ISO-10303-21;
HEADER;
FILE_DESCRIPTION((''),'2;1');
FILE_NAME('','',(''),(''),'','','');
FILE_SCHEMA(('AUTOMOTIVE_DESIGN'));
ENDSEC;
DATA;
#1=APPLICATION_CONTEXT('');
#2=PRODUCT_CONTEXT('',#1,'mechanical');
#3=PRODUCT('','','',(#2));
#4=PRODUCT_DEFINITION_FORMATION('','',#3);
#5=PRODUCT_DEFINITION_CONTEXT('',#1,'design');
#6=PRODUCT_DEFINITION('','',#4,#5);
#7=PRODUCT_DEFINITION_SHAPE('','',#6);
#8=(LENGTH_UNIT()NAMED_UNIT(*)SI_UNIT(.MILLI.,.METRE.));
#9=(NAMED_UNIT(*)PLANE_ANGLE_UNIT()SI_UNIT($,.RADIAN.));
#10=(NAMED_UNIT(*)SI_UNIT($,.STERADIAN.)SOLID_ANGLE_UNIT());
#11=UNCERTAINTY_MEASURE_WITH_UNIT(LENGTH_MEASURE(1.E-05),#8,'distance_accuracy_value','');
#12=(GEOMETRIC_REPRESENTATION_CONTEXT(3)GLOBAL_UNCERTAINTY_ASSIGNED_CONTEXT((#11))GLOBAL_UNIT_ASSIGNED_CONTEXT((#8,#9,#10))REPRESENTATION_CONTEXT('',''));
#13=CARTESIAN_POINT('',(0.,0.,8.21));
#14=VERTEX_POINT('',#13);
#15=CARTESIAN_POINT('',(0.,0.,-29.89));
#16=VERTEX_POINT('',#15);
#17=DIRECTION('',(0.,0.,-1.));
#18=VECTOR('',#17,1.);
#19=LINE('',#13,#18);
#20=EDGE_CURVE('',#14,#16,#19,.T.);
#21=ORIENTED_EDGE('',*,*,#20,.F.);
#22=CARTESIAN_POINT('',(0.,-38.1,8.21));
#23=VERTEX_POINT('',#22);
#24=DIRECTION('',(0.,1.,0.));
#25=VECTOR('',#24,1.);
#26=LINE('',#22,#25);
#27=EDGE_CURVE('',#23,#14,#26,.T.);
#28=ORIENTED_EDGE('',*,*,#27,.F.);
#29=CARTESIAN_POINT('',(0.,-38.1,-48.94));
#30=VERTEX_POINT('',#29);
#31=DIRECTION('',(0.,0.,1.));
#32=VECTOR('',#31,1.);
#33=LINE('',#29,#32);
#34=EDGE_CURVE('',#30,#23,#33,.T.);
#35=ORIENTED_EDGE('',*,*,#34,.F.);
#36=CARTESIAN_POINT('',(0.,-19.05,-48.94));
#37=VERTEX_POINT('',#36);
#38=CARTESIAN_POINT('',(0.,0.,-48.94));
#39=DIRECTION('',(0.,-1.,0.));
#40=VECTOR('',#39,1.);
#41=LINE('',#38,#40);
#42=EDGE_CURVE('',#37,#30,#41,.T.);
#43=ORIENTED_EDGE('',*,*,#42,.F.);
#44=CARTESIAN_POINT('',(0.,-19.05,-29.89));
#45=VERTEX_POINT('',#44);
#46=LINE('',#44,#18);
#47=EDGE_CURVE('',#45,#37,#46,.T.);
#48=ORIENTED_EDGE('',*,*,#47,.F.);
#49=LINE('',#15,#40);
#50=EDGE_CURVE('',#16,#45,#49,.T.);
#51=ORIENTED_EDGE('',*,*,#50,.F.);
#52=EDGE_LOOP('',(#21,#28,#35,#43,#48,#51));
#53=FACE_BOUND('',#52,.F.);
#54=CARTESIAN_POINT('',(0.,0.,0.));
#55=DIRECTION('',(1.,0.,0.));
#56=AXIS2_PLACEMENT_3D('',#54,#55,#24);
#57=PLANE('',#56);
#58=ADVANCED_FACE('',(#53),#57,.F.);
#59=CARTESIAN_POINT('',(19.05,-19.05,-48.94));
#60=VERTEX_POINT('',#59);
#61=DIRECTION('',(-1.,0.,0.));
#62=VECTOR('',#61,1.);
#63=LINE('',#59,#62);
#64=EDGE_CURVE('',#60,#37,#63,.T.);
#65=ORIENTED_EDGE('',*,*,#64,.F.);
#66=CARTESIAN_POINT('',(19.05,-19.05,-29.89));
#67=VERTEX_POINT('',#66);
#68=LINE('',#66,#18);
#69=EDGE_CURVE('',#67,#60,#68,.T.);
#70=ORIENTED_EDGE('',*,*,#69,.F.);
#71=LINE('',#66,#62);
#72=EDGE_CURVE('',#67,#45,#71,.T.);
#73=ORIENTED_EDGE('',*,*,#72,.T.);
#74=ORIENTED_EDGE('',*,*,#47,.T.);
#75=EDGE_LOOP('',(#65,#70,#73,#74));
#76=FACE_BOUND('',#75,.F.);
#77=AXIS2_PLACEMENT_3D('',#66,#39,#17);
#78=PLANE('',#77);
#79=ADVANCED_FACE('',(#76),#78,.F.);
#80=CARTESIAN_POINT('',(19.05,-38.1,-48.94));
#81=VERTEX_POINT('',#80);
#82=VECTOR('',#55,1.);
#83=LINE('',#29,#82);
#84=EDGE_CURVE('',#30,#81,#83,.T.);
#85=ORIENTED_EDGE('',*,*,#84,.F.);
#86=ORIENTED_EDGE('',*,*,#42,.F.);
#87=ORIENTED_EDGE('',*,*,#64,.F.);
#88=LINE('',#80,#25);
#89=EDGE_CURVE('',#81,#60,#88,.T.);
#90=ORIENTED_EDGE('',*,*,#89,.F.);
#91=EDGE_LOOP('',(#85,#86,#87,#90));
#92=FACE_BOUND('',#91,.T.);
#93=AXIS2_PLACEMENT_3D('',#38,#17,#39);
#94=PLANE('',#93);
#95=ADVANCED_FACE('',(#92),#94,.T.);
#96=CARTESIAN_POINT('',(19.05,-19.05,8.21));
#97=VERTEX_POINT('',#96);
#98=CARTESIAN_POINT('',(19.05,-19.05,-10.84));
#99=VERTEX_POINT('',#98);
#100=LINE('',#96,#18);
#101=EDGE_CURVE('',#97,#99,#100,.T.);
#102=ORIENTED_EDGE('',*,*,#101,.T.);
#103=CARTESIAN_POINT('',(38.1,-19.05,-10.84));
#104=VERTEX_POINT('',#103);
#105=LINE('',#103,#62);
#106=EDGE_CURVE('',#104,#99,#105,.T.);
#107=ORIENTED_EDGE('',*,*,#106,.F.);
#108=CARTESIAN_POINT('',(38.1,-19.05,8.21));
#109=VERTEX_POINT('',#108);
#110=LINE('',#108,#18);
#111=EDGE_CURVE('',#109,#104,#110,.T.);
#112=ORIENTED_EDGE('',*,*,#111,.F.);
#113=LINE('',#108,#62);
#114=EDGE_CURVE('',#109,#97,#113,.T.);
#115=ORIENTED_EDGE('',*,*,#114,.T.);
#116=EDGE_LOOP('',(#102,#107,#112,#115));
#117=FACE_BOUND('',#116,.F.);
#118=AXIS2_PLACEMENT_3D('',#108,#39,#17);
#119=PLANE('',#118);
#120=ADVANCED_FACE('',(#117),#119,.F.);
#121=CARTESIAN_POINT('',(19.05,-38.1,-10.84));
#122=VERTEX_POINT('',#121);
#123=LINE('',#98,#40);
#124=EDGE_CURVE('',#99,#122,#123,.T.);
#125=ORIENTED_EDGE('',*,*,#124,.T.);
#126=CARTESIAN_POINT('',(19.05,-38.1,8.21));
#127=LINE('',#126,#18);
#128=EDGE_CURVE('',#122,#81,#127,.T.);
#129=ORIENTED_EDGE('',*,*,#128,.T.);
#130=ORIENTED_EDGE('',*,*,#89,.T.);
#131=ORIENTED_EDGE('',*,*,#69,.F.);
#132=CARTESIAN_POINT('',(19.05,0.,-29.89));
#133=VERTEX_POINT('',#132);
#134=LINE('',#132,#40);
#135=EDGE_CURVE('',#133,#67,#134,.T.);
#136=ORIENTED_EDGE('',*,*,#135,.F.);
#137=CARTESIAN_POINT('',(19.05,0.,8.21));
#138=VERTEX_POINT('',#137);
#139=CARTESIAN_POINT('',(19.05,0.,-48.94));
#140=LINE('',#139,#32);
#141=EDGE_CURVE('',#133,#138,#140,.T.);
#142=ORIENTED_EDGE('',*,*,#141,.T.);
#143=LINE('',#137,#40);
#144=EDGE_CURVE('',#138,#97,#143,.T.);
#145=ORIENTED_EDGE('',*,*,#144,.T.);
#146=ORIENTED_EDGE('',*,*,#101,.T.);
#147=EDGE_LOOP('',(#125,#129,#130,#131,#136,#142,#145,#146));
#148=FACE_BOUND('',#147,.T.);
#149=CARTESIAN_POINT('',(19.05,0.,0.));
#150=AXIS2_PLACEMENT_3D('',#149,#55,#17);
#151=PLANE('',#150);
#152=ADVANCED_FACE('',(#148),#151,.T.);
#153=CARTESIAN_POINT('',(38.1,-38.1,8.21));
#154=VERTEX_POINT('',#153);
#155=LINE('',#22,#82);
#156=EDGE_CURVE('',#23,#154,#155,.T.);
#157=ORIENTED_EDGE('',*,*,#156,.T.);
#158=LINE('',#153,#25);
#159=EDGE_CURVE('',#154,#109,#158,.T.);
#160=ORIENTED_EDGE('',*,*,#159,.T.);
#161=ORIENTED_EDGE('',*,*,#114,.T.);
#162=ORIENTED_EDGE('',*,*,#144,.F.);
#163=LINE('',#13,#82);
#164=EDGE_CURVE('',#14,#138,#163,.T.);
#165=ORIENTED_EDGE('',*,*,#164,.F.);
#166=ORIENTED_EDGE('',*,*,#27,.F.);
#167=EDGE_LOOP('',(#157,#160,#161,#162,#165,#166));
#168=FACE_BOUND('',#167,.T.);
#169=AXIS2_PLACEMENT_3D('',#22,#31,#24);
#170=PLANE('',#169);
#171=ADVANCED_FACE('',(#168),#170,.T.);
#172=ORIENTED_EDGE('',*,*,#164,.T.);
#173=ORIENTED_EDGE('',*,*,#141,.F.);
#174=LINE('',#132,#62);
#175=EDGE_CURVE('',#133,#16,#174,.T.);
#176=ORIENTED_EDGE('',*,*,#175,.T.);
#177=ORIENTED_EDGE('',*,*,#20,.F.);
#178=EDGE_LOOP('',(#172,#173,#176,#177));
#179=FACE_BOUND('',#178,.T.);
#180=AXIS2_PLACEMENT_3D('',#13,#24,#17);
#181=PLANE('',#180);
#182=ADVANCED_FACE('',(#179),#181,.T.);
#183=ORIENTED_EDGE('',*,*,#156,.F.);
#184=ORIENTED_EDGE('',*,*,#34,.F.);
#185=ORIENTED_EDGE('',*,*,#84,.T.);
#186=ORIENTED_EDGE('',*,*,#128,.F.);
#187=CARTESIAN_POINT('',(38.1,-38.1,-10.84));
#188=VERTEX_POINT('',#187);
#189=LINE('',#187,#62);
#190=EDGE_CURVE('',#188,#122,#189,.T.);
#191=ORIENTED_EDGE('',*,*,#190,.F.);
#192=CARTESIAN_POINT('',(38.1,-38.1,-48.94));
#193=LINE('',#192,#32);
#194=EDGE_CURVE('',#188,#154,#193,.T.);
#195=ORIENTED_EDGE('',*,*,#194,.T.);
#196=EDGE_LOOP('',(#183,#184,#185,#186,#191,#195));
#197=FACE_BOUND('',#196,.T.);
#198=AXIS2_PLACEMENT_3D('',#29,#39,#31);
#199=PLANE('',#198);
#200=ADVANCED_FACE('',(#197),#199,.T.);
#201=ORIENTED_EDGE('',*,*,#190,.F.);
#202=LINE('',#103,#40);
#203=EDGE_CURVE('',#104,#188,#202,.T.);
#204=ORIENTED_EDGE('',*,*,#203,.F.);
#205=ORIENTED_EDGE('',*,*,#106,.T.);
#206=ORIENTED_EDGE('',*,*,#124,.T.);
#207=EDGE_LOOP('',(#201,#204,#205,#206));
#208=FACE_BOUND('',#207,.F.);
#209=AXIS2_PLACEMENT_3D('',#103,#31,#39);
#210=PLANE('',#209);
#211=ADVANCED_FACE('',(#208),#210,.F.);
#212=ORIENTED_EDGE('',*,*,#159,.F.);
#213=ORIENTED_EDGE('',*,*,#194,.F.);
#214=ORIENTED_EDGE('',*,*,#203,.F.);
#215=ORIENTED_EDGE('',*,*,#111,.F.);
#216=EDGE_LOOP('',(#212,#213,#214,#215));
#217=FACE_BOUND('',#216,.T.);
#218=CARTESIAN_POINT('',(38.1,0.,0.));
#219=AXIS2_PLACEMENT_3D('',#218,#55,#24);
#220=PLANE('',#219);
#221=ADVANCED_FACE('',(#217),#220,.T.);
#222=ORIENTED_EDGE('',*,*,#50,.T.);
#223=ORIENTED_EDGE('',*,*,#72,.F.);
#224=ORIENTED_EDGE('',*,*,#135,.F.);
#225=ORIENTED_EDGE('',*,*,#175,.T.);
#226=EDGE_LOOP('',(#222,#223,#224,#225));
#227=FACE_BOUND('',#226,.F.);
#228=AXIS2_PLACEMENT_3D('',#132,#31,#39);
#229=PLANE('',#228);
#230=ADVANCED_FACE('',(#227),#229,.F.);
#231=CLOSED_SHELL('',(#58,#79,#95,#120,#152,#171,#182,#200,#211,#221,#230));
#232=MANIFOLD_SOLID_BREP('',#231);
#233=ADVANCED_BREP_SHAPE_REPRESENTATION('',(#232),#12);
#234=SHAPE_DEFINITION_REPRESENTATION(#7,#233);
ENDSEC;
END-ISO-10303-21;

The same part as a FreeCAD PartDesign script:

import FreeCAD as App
import Part
import Sketcher

V = App.Vector
Q = App.Units.Quantity

doc = App.newDocument("Part")
body = doc.addObject("PartDesign::Body", "Body")

# Sketch on YZ plane
sketch1 = body.newObject("Sketcher::SketchObject", "Sketch")
sketch1.AttachmentSupport = (doc.getObject("YZ_Plane"), [""])
sketch1.MapMode = "FlatFace"
sketch1.addGeometry(Part.LineSegment(V(-38, -49, 0), V(0, -49, 0)), False)
sketch1.addGeometry(Part.LineSegment(V(0, -49, 0), V(0, 8, 0)), False)
sketch1.addGeometry(Part.LineSegment(V(0, 8, 0), V(-38, 8, 0)), False)
sketch1.addGeometry(Part.LineSegment(V(-38, 8, 0), V(-38, -49, 0)), False)
sketch1.addConstraint(Sketcher.Constraint("Coincident", 0, 2, 1, 1))
sketch1.addConstraint(Sketcher.Constraint("Coincident", 1, 2, 2, 1))
sketch1.addConstraint(Sketcher.Constraint("Coincident", 2, 2, 3, 1))
sketch1.addConstraint(Sketcher.Constraint("Coincident", 3, 2, 0, 1))
sketch1.addConstraint(Sketcher.Constraint("Horizontal", 0))
sketch1.addConstraint(Sketcher.Constraint("Vertical", 1))
sketch1.addConstraint(Sketcher.Constraint("Horizontal", 2))
sketch1.addConstraint(Sketcher.Constraint("Vertical", 3))
sketch1.addConstraint(Sketcher.Constraint("PointOnObject", 0, 2, -2))
sketch1.addConstraint(Sketcher.Constraint("DistanceX", 0, 1, 0, 2, Q("1.5 in")))
sketch1.addConstraint(Sketcher.Constraint("DistanceY", 1, 1, 1, 2, Q("2.25 in")))
sketch1.addConstraint(Sketcher.Constraint("DistanceY", 0, 2, -1, 1, Q("48.94 mm")))
pad1 = body.newObject("PartDesign::Pad", "Pad")
pad1.Profile = sketch1
pad1.Length = Q("1.5 in")

# Sketch on YZ plane
sketch2 = body.newObject("Sketcher::SketchObject", "Sketch001")
sketch2.AttachmentSupport = (doc.getObject("YZ_Plane"), [""])
sketch2.MapMode = "FlatFace"
sketch2.AttachmentOffset = App.Placement(V(0, 0, 1.5 * 25.4), App.Rotation())
sketch2.addGeometry(Part.LineSegment(V(0, -49, 0), V(0, 8, 0)), False)
sketch2.addGeometry(Part.LineSegment(V(0, 8, 0), V(-19, 8, 0)), False)
sketch2.addGeometry(Part.LineSegment(V(-19, 8, 0), V(-19, -11, 0)), False)
sketch2.addGeometry(Part.LineSegment(V(-19, -11, 0), V(-38, -11, 0)), False)
sketch2.addGeometry(Part.LineSegment(V(-38, -11, 0), V(-38, -49, 0)), False)
sketch2.addGeometry(Part.LineSegment(V(-38, -49, 0), V(0, -49, 0)), False)
sketch2.addConstraint(Sketcher.Constraint("Coincident", 0, 2, 1, 1))
sketch2.addConstraint(Sketcher.Constraint("Coincident", 1, 2, 2, 1))
sketch2.addConstraint(Sketcher.Constraint("Coincident", 2, 2, 3, 1))
sketch2.addConstraint(Sketcher.Constraint("Coincident", 3, 2, 4, 1))
sketch2.addConstraint(Sketcher.Constraint("Coincident", 4, 2, 5, 1))
sketch2.addConstraint(Sketcher.Constraint("Coincident", 5, 2, 0, 1))
sketch2.addConstraint(Sketcher.Constraint("Vertical", 0))
sketch2.addConstraint(Sketcher.Constraint("Horizontal", 1))
sketch2.addConstraint(Sketcher.Constraint("Vertical", 2))
sketch2.addConstraint(Sketcher.Constraint("Horizontal", 3))
sketch2.addConstraint(Sketcher.Constraint("Vertical", 4))
sketch2.addConstraint(Sketcher.Constraint("Horizontal", 5))
sketch2.addConstraint(Sketcher.Constraint("PointOnObject", 0, 2, -2))
sketch2.addConstraint(Sketcher.Constraint("Equal", 1, 3))
sketch2.addConstraint(Sketcher.Constraint("Equal", 3, 2))
sketch2.addConstraint(Sketcher.Constraint("Equal", 5, 4))
sketch2.addConstraint(Sketcher.Constraint("DistanceX", 1, 2, 1, 1, Q("0.75 in")))
sketch2.addConstraint(Sketcher.Constraint("DistanceY", -1, 1, 0, 2, Q("8.21 mm")))
pocket1 = body.newObject("PartDesign::Pocket", "Pocket")
pocket1.Profile = sketch2
pocket1.Length = Q("0.75 in")

# Sketch on YZ plane
sketch3 = body.newObject("Sketcher::SketchObject", "Sketch002")
sketch3.AttachmentSupport = (doc.getObject("YZ_Plane"), [""])
sketch3.MapMode = "FlatFace"
sketch3.AttachmentOffset = App.Placement(V(0, 0, 0.75 * 25.4), App.Rotation())
sketch3.addGeometry(Part.LineSegment(V(-19, -49, 0), V(0, -49, 0)), False)
sketch3.addGeometry(Part.LineSegment(V(0, -49, 0), V(0, -30, 0)), False)
sketch3.addGeometry(Part.LineSegment(V(0, -30, 0), V(-19, -30, 0)), False)
sketch3.addGeometry(Part.LineSegment(V(-19, -30, 0), V(-19, -49, 0)), False)
sketch3.addConstraint(Sketcher.Constraint("Coincident", 0, 2, 1, 1))
sketch3.addConstraint(Sketcher.Constraint("Coincident", 1, 2, 2, 1))
sketch3.addConstraint(Sketcher.Constraint("Coincident", 2, 2, 3, 1))
sketch3.addConstraint(Sketcher.Constraint("Coincident", 3, 2, 0, 1))
sketch3.addConstraint(Sketcher.Constraint("Horizontal", 0))
sketch3.addConstraint(Sketcher.Constraint("Vertical", 1))
sketch3.addConstraint(Sketcher.Constraint("Horizontal", 2))
sketch3.addConstraint(Sketcher.Constraint("Vertical", 3))
sketch3.addConstraint(Sketcher.Constraint("PointOnObject", 0, 2, -2))
sketch3.addConstraint(Sketcher.Constraint("Equal", 2, 1))
sketch3.addConstraint(Sketcher.Constraint("DistanceX", 0, 1, 0, 2, Q("0.75 in")))
sketch3.addConstraint(Sketcher.Constraint("DistanceY", 0, 2, -1, 1, Q("48.94 mm")))
pocket2 = body.newObject("PartDesign::Pocket", "Pocket001")
pocket2.Profile = sketch3
pocket2.Length = Q("0.75 in")

doc.recompute()
